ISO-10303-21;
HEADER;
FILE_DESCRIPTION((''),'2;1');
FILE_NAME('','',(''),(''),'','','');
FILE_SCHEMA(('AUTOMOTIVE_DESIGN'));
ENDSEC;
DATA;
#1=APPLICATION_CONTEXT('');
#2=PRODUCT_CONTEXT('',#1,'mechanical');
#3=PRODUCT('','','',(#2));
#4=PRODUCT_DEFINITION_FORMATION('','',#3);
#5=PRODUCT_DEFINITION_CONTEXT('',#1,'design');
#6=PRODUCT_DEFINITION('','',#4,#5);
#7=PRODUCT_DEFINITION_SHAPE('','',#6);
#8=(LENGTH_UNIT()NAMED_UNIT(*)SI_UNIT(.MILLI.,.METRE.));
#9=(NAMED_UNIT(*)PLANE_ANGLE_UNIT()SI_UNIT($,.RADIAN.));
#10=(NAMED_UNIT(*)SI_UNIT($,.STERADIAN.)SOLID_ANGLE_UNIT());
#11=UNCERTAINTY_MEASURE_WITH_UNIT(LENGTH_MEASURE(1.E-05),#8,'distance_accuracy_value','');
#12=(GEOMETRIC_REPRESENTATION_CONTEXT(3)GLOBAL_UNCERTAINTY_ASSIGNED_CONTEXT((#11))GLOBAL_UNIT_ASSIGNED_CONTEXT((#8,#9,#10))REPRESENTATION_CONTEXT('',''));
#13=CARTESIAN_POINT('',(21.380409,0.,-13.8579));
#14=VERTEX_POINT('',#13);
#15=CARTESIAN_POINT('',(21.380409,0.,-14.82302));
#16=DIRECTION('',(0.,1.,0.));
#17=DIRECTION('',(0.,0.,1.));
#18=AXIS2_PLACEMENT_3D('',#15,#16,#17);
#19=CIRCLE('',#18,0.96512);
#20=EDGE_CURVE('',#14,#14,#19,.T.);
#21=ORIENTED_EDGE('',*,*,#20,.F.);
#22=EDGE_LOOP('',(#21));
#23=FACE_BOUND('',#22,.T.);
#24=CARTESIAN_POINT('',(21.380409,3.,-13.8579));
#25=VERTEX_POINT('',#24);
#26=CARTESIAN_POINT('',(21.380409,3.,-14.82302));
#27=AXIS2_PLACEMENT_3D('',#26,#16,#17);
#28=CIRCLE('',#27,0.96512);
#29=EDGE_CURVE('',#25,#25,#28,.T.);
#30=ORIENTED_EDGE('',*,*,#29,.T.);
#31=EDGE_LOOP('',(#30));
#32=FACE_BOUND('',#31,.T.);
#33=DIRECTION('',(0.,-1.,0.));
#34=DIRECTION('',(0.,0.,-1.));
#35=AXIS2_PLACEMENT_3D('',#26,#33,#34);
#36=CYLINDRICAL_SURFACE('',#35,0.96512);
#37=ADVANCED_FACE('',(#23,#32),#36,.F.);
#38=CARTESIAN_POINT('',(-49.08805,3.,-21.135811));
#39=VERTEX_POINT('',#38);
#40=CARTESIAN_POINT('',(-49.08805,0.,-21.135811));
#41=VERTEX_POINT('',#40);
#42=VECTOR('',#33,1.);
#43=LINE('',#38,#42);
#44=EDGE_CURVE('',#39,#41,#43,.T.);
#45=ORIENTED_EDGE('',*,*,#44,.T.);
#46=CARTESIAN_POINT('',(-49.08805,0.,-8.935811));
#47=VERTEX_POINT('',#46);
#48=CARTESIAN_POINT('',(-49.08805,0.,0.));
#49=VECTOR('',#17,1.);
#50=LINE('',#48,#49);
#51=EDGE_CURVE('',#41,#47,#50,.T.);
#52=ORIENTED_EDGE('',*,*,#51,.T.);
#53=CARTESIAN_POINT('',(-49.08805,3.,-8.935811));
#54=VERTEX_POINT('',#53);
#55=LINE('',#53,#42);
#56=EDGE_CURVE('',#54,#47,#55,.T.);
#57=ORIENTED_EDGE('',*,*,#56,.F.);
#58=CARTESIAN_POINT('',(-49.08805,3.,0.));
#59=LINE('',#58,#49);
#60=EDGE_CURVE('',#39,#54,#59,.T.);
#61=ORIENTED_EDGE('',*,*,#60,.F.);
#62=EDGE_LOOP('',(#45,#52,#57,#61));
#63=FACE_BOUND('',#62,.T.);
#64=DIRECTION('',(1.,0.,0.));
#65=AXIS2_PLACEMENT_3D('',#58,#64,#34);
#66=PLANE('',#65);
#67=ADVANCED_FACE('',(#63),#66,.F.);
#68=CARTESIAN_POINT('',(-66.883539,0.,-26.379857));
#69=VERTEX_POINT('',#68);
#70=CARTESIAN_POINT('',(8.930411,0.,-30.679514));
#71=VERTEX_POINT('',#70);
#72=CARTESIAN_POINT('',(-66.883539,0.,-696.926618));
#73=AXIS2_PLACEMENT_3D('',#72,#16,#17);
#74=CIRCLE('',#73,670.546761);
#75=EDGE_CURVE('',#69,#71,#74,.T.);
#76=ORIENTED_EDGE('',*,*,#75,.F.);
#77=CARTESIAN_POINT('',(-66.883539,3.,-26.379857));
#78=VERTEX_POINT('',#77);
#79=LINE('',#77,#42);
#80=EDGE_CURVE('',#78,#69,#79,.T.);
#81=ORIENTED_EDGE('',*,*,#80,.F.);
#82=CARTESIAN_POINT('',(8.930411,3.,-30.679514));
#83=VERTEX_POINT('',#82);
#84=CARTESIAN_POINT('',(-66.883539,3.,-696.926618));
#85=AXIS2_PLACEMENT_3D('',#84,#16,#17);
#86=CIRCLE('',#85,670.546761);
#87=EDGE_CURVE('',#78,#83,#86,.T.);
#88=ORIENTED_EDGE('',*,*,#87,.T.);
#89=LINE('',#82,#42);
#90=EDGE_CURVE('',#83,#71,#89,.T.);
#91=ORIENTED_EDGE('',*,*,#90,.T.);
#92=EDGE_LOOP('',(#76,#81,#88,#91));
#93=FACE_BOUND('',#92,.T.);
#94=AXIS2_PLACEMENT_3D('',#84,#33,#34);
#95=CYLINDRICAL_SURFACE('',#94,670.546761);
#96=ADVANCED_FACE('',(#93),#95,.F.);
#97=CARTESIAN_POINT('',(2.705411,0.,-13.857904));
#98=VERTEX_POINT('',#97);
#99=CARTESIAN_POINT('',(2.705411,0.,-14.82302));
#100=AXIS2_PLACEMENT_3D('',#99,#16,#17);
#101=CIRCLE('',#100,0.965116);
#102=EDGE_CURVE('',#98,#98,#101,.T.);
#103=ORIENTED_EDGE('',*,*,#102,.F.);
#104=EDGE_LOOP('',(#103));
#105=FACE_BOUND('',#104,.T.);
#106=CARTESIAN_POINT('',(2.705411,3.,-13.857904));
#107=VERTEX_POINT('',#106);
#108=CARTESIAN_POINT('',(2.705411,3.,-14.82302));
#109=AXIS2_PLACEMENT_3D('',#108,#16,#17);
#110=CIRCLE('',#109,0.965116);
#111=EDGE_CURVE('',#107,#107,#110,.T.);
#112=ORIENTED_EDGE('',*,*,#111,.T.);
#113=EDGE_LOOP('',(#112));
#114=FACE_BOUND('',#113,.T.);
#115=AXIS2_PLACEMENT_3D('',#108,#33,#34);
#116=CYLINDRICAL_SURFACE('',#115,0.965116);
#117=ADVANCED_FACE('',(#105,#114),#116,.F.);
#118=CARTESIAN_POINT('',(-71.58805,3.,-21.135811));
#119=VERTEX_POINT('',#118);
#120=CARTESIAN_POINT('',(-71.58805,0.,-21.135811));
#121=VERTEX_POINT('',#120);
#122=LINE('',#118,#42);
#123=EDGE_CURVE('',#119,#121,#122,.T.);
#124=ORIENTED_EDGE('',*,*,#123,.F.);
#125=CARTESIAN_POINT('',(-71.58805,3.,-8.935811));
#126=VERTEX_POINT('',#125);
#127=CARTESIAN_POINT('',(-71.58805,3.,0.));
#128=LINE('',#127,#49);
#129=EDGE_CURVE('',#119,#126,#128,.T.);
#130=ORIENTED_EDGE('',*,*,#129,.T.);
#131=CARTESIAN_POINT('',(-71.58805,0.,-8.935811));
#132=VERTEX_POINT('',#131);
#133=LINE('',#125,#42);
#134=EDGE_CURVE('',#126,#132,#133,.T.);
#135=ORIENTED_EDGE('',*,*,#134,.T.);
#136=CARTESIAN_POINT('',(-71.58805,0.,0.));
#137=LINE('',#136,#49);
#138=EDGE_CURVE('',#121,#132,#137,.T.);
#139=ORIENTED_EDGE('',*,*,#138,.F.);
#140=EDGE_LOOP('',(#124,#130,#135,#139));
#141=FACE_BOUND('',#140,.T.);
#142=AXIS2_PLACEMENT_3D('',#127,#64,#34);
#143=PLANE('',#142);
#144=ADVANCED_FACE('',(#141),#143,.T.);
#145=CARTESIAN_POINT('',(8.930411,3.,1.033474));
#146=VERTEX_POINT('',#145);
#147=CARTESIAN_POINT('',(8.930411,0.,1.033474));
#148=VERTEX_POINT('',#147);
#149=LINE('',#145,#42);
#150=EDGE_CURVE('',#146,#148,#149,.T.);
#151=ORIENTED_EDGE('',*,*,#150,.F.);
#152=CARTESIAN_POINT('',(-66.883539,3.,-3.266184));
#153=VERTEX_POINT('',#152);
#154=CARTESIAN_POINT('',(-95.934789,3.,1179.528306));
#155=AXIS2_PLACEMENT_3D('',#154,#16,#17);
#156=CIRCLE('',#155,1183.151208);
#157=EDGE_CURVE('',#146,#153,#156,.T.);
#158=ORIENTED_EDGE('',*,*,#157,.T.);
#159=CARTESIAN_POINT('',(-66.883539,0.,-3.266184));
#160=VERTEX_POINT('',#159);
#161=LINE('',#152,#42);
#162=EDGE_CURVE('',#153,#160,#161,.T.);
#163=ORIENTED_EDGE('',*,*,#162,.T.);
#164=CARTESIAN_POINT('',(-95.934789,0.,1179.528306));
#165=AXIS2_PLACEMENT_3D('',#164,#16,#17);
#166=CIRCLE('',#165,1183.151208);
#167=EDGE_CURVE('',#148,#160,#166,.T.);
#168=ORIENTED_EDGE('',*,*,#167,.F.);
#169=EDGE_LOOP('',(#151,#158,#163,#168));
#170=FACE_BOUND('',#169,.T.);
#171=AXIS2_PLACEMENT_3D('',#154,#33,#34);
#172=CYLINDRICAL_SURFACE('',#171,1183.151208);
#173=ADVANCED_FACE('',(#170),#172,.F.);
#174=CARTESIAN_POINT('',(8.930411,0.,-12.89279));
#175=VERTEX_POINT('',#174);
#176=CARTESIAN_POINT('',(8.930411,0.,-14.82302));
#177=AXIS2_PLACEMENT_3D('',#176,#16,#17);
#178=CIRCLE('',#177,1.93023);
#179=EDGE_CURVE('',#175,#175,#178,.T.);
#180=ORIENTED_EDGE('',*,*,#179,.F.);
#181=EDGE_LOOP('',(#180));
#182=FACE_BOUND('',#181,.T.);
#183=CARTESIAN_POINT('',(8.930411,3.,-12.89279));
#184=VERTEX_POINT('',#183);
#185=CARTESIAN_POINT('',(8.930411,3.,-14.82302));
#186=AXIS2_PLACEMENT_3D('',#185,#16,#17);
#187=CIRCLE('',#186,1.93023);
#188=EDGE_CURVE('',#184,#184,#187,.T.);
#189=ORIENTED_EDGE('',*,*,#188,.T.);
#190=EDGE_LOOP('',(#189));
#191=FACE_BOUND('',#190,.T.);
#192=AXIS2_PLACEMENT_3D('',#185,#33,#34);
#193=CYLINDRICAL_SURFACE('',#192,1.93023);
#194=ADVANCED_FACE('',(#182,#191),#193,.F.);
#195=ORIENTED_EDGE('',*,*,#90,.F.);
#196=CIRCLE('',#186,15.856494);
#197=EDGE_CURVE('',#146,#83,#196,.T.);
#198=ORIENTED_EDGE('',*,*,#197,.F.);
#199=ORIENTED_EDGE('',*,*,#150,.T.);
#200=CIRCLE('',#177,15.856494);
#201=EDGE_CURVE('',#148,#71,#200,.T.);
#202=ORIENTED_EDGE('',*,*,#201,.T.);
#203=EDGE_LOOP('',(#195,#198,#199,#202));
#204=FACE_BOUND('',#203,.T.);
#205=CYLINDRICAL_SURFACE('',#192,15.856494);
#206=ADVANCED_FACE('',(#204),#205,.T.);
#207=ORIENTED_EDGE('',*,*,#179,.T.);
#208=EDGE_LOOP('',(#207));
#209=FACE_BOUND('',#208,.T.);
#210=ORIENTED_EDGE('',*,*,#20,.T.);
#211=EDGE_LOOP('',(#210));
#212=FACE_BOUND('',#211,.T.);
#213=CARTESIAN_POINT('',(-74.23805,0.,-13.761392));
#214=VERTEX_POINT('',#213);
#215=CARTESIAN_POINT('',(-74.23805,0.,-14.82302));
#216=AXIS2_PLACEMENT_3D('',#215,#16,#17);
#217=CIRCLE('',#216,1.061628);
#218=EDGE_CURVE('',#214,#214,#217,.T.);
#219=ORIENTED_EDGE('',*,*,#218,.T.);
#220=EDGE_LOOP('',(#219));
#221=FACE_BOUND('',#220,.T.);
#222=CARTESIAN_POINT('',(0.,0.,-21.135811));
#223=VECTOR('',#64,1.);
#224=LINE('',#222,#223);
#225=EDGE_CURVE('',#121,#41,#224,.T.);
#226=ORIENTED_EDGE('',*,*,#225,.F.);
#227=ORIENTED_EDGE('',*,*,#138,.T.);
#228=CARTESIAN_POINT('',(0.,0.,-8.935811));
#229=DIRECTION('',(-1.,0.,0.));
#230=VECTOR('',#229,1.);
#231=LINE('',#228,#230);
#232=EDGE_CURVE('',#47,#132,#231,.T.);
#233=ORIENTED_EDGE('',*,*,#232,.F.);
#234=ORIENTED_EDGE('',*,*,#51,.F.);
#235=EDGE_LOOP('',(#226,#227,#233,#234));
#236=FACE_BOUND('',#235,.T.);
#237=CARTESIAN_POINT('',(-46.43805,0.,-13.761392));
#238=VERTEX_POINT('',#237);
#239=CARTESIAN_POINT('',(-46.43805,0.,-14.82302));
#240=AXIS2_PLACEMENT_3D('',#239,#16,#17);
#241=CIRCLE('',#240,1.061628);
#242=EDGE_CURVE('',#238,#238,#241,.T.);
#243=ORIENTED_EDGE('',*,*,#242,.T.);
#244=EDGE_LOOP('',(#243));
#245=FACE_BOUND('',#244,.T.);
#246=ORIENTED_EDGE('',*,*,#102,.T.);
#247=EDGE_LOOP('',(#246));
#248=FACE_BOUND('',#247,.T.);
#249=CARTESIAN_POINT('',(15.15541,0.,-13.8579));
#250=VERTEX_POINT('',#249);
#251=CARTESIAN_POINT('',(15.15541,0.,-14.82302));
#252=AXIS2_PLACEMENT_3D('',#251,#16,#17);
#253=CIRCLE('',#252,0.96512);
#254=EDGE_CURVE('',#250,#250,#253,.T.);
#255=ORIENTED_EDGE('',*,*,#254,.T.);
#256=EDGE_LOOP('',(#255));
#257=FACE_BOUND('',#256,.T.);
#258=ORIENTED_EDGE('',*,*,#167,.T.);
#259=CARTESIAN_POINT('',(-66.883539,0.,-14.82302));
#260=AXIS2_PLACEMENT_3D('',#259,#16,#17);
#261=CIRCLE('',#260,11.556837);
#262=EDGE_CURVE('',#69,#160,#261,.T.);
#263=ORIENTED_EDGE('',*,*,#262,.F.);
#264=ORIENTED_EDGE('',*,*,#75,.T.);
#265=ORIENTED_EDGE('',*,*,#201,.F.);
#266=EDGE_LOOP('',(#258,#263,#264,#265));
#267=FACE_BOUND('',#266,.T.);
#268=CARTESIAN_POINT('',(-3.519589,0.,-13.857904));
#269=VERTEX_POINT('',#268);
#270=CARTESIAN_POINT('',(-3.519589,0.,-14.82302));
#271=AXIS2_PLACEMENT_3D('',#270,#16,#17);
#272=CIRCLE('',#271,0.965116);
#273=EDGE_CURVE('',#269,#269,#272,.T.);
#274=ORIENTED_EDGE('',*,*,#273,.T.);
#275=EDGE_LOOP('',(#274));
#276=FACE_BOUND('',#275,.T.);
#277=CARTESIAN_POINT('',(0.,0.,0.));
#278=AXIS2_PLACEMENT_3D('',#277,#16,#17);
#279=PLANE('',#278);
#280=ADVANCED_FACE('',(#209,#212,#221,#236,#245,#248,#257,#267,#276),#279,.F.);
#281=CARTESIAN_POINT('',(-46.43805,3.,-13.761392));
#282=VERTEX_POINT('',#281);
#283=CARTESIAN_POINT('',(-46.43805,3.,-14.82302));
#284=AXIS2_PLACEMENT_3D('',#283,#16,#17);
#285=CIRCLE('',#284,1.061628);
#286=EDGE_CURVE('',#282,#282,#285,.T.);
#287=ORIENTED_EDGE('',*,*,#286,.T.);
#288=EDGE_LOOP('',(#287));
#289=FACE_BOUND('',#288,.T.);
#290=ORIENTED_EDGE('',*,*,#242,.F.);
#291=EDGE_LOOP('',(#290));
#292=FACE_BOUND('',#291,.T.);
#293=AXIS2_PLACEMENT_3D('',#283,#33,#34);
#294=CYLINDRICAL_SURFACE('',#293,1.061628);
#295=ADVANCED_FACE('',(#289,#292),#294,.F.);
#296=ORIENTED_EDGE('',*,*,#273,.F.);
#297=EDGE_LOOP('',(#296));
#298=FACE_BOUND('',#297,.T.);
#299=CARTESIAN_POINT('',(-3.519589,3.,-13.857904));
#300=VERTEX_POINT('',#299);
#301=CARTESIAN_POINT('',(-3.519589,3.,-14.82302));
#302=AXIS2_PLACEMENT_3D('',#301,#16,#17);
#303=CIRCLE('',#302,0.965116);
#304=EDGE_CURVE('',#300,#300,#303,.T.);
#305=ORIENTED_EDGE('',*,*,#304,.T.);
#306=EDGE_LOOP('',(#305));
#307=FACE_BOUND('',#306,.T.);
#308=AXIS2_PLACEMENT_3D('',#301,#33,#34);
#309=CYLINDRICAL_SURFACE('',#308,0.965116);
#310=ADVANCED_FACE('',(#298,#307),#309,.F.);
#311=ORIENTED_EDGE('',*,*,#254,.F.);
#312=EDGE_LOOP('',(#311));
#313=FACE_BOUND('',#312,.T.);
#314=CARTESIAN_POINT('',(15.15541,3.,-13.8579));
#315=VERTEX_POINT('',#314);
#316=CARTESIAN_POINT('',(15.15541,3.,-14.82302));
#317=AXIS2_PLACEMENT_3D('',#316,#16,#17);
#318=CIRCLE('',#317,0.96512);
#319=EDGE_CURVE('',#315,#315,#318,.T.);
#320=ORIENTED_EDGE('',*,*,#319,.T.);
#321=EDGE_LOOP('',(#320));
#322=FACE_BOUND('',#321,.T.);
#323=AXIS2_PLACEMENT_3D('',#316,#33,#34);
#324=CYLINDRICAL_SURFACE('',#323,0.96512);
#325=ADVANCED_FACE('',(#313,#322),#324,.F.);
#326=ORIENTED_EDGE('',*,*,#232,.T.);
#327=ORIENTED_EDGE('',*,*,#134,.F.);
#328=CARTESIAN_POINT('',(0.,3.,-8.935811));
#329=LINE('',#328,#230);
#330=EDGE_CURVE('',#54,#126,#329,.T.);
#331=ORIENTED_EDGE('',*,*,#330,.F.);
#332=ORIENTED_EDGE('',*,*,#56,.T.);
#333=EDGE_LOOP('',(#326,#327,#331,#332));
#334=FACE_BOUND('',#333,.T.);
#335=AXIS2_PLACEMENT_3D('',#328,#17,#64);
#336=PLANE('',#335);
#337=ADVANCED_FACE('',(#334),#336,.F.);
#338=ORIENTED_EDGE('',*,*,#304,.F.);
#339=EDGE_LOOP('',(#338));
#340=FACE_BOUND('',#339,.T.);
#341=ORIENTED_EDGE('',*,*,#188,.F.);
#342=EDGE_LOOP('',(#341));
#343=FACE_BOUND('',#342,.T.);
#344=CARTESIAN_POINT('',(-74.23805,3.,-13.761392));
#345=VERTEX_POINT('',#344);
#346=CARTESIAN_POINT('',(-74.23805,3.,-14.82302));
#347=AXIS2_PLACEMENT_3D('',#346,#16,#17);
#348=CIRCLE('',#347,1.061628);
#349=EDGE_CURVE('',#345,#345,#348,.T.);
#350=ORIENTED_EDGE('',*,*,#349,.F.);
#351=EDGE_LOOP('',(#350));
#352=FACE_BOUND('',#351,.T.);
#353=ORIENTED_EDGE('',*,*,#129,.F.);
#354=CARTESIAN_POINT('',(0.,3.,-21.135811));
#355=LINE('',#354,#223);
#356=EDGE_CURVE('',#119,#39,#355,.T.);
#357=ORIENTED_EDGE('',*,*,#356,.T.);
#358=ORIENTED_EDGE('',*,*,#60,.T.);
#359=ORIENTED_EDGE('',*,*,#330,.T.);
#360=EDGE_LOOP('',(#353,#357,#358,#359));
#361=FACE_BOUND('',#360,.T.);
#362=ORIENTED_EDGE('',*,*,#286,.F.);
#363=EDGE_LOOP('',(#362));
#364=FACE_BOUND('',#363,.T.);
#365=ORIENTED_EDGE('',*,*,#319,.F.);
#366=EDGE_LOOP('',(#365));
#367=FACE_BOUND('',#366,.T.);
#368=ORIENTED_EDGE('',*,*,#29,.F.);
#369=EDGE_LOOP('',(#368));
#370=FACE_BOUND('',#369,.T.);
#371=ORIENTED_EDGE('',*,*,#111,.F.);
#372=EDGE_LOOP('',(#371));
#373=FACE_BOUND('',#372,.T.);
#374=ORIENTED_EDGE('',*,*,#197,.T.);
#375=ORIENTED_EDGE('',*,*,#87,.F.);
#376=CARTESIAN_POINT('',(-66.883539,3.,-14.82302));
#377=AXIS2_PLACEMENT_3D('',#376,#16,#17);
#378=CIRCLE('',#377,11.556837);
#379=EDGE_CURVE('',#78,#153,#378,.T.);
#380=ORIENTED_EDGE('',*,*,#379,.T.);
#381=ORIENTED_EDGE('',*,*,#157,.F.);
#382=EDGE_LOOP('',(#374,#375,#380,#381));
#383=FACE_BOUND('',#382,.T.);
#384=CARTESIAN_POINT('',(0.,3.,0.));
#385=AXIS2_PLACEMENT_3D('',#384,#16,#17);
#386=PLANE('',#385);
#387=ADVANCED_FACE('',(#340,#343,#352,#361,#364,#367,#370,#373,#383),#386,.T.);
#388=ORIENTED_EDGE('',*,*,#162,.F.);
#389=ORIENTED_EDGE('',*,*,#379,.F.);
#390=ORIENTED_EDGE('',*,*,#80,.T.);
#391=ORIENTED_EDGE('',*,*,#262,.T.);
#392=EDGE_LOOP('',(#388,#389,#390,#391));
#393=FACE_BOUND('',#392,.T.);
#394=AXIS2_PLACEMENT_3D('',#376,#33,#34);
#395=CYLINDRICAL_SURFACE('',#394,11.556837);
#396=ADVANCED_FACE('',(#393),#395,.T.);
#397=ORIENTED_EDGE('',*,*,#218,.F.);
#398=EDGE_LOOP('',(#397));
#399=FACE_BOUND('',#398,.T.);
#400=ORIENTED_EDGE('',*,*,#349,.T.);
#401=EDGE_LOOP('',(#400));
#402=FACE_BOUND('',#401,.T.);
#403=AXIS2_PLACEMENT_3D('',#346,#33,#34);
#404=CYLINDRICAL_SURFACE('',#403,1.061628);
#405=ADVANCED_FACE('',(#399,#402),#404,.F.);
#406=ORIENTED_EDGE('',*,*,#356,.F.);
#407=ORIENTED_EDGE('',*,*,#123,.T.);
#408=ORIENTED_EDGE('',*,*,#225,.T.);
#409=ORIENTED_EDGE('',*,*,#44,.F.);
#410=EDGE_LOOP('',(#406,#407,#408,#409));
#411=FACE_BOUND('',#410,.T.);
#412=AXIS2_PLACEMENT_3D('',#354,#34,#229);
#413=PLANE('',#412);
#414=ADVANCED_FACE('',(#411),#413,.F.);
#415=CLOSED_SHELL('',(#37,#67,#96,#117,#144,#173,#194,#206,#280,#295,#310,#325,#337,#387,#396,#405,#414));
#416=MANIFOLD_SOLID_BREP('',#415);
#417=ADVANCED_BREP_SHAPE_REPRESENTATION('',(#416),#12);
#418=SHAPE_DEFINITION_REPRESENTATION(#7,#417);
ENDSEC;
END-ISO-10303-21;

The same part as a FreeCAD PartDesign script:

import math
import FreeCAD as App
import Part
import Sketcher
Q = App.Units.Quantity


def add_polygon(sketch, points):
    """Adds a closed chain of lines whose ends are joined by coincident constraints."""
    first, n = sketch.GeometryCount, len(points)
    for a, b in zip(points, points[1:] + points[:1]):
        sketch.addGeometry(Part.LineSegment(App.Vector(*a, 0), App.Vector(*b, 0)), False)
    for i in range(n):
        sketch.addConstraint(Sketcher.Constraint("Coincident", first + i, 2, first + (i + 1) % n, 1))

doc = App.newDocument("Part")
body = doc.addObject("PartDesign::Body", "Body")

sketch1 = doc.addObject("Sketcher::SketchObject", "Sketch")
body.addObject(sketch1)
sketch1.AttachmentSupport = (doc.XZ_Plane, [""])
sketch1.MapMode = "FlatFace"
sketch1.addGeometry(Part.ArcOfCircle(Part.Circle(App.Vector(-66.883539, -14.82302, 0), App.Vector(0, 0, 1), 11.556837), math.radians(90), math.radians(270)), False)
sketch1.addGeometry(Part.ArcOfCircle(Part.Circle(App.Vector(-95.934789, 1179.528307, 0), App.Vector(0, 0, 1), 1183.151208), math.radians(-88.59301), math.radians(-84.915081)), False)
sketch1.addGeometry(Part.ArcOfCircle(Part.Circle(App.Vector(8.930411, -14.82302, 0), App.Vector(0, 0, 1), 15.856494), math.radians(-90), math.radians(90)), False)
sketch1.addGeometry(Part.ArcOfCircle(Part.Circle(App.Vector(-66.883539, -696.926618, 0), App.Vector(0, 0, 1), 670.546761), math.radians(83.508092), math.radians(90)), False)
sketch1.addGeometry(Part.Circle(App.Vector(-74.23805, -14.82302, 0), App.Vector(0, 0, 1), 1.061628), False)
sketch1.addGeometry(Part.Circle(App.Vector(-46.43805, -14.82302, 0), App.Vector(0, 0, 1), 1.061628), False)
sketch1.addGeometry(Part.Circle(App.Vector(-3.519589, -14.82302, 0), App.Vector(0, 0, 1), 0.965116), False)
sketch1.addGeometry(Part.Circle(App.Vector(2.705411, -14.82302, 0), App.Vector(0, 0, 1), 0.965116), False)
sketch1.addGeometry(Part.Circle(App.Vector(8.930411, -14.82302, 0), App.Vector(0, 0, 1), 1.93023), False)
sketch1.addGeometry(Part.Circle(App.Vector(15.15541, -14.82302, 0), App.Vector(0, 0, 1), 0.96512), False)
sketch1.addGeometry(Part.Circle(App.Vector(21.380409, -14.82302, 0), App.Vector(0, 0, 1), 0.96512), False)
add_polygon(sketch1, [(-49.08805, -8.935811), (-71.58805, -8.935811), (-71.58805, -21.135811), (-49.08805, -21.135811)])
sketch1.addConstraint(Sketcher.Constraint("Coincident", 0, 1, 1, 1))
sketch1.addConstraint(Sketcher.Constraint("Coincident", 1, 2, 2, 2))
sketch1.addConstraint(Sketcher.Constraint("Coincident", 2, 1, 3, 1))
sketch1.addConstraint(Sketcher.Constraint("Tangent", 3, 2, 0, 2))
sketch1.addConstraint(Sketcher.Constraint("Horizontal", 11))
sketch1.addConstraint(Sketcher.Constraint("Vertical", 12))
sketch1.addConstraint(Sketcher.Constraint("Horizontal", 13))
sketch1.addConstraint(Sketcher.Constraint("Vertical", 14))
sketch1.addConstraint(Sketcher.Constraint("Coincident", 8, 3, 2, 3))
sketch1.addConstraint(Sketcher.Constraint("Equal", 4, 5))
sketch1.addConstraint(Sketcher.Constraint("Equal", 6, 7))
sketch1.addConstraint(Sketcher.Constraint("Equal", 9, 10))
sketch1.addConstraint(Sketcher.Constraint("Horizontal", 0, 3, 2, 3))
sketch1.addConstraint(Sketcher.Constraint("Horizontal", 2, 3, 4, 3))
sketch1.addConstraint(Sketcher.Constraint("Horizontal", 4, 3, 5, 3))
sketch1.addConstraint(Sketcher.Constraint("Horizontal", 5, 3, 6, 3))
sketch1.addConstraint(Sketcher.Constraint("Horizontal", 6, 3, 7, 3))
sketch1.addConstraint(Sketcher.Constraint("Horizontal", 8, 3, 9, 3))
sketch1.addConstraint(Sketcher.Constraint("Horizontal", 9, 3, 10, 3))
sketch1.addConstraint(Sketcher.Constraint("Vertical", 0, 3, 3, 3))
sketch1.addConstraint(Sketcher.Constraint("Vertical", 3, 3, 0, 1))
sketch1.addConstraint(Sketcher.Constraint("Vertical", 8, 3, 1, 2))
sketch1.addConstraint(Sketcher.Constraint("DistanceX", 11, 2, 11, 1, Q("22.5 mm")))
sketch1.addConstraint(Sketcher.Constraint("DistanceY", 12, 2, 12, 1, Q("12.2 mm")))
sketch1.addConstraint(Sketcher.Constraint("DistanceX", 4, 3, 5, 3, Q("27.8 mm")))
sketch1.addConstraint(Sketcher.Constraint("DistanceX", 6, 3, 10, 3, Q("24.899998 mm")))
sketch1.addConstraint(Sketcher.Constraint("Diameter", 8, Q("3.86046 mm")))
sketch1.addConstraint(Sketcher.Constraint("Diameter", 9, Q("1.93024 mm")))
sketch1.addConstraint(Sketcher.Constraint("Radius", 1, Q("1183.151208 mm")))
sketch1.addConstraint(Sketcher.Constraint("Radius", 3, Q("670.546761 mm")))
sketch1.addConstraint(Sketcher.Constraint("DistanceX", 6, 3, 2, 3, Q("12.45 mm")))
sketch1.addConstraint(Sketcher.Constraint("DistanceX", 7, 3, 9, 3, Q("12.449999 mm")))
sketch1.addConstraint(Sketcher.Constraint("DistanceX", 4, 3, 11, 2, Q("2.65 mm")))
sketch1.addConstraint(Sketcher.Constraint("Diameter", 4, Q("2.123256 mm")))
sketch1.addConstraint(Sketcher.Constraint("Diameter", 6, Q("1.930233 mm")))
sketch1.addConstraint(Sketcher.Constraint("Radius", 0, Q("11.556837 mm")))
sketch1.addConstraint(Sketcher.Constraint("Radius", 2, Q("15.856494 mm")))
sketch1.addConstraint(Sketcher.Constraint("DistanceX", 7, 3, 2, 3, Q("6.225 mm")))
sketch1.addConstraint(Sketcher.Constraint("DistanceX", 2, 1, 9, 3, Q("6.224999 mm")))
sketch1.addConstraint(Sketcher.Constraint("DistanceX", 0, 3, -1, 1, Q("66.883539 mm")))
sketch1.addConstraint(Sketcher.Constraint("DistanceY", 0, 3, -1, 1, Q("14.82302 mm")))
sketch1.addConstraint(Sketcher.Constraint("DistanceX", 4, 3, -1, 1, Q("74.23805 mm")))
sketch1.addConstraint(Sketcher.Constraint("DistanceY", 11, 2, -1, 1, Q("8.935811 mm")))
pad1 = doc.addObject("PartDesign::Pad", "Pad")
body.addObject(pad1)
pad1.Profile = sketch1
pad1.Length = 3
pad1.Reversed = True

doc.recompute()
